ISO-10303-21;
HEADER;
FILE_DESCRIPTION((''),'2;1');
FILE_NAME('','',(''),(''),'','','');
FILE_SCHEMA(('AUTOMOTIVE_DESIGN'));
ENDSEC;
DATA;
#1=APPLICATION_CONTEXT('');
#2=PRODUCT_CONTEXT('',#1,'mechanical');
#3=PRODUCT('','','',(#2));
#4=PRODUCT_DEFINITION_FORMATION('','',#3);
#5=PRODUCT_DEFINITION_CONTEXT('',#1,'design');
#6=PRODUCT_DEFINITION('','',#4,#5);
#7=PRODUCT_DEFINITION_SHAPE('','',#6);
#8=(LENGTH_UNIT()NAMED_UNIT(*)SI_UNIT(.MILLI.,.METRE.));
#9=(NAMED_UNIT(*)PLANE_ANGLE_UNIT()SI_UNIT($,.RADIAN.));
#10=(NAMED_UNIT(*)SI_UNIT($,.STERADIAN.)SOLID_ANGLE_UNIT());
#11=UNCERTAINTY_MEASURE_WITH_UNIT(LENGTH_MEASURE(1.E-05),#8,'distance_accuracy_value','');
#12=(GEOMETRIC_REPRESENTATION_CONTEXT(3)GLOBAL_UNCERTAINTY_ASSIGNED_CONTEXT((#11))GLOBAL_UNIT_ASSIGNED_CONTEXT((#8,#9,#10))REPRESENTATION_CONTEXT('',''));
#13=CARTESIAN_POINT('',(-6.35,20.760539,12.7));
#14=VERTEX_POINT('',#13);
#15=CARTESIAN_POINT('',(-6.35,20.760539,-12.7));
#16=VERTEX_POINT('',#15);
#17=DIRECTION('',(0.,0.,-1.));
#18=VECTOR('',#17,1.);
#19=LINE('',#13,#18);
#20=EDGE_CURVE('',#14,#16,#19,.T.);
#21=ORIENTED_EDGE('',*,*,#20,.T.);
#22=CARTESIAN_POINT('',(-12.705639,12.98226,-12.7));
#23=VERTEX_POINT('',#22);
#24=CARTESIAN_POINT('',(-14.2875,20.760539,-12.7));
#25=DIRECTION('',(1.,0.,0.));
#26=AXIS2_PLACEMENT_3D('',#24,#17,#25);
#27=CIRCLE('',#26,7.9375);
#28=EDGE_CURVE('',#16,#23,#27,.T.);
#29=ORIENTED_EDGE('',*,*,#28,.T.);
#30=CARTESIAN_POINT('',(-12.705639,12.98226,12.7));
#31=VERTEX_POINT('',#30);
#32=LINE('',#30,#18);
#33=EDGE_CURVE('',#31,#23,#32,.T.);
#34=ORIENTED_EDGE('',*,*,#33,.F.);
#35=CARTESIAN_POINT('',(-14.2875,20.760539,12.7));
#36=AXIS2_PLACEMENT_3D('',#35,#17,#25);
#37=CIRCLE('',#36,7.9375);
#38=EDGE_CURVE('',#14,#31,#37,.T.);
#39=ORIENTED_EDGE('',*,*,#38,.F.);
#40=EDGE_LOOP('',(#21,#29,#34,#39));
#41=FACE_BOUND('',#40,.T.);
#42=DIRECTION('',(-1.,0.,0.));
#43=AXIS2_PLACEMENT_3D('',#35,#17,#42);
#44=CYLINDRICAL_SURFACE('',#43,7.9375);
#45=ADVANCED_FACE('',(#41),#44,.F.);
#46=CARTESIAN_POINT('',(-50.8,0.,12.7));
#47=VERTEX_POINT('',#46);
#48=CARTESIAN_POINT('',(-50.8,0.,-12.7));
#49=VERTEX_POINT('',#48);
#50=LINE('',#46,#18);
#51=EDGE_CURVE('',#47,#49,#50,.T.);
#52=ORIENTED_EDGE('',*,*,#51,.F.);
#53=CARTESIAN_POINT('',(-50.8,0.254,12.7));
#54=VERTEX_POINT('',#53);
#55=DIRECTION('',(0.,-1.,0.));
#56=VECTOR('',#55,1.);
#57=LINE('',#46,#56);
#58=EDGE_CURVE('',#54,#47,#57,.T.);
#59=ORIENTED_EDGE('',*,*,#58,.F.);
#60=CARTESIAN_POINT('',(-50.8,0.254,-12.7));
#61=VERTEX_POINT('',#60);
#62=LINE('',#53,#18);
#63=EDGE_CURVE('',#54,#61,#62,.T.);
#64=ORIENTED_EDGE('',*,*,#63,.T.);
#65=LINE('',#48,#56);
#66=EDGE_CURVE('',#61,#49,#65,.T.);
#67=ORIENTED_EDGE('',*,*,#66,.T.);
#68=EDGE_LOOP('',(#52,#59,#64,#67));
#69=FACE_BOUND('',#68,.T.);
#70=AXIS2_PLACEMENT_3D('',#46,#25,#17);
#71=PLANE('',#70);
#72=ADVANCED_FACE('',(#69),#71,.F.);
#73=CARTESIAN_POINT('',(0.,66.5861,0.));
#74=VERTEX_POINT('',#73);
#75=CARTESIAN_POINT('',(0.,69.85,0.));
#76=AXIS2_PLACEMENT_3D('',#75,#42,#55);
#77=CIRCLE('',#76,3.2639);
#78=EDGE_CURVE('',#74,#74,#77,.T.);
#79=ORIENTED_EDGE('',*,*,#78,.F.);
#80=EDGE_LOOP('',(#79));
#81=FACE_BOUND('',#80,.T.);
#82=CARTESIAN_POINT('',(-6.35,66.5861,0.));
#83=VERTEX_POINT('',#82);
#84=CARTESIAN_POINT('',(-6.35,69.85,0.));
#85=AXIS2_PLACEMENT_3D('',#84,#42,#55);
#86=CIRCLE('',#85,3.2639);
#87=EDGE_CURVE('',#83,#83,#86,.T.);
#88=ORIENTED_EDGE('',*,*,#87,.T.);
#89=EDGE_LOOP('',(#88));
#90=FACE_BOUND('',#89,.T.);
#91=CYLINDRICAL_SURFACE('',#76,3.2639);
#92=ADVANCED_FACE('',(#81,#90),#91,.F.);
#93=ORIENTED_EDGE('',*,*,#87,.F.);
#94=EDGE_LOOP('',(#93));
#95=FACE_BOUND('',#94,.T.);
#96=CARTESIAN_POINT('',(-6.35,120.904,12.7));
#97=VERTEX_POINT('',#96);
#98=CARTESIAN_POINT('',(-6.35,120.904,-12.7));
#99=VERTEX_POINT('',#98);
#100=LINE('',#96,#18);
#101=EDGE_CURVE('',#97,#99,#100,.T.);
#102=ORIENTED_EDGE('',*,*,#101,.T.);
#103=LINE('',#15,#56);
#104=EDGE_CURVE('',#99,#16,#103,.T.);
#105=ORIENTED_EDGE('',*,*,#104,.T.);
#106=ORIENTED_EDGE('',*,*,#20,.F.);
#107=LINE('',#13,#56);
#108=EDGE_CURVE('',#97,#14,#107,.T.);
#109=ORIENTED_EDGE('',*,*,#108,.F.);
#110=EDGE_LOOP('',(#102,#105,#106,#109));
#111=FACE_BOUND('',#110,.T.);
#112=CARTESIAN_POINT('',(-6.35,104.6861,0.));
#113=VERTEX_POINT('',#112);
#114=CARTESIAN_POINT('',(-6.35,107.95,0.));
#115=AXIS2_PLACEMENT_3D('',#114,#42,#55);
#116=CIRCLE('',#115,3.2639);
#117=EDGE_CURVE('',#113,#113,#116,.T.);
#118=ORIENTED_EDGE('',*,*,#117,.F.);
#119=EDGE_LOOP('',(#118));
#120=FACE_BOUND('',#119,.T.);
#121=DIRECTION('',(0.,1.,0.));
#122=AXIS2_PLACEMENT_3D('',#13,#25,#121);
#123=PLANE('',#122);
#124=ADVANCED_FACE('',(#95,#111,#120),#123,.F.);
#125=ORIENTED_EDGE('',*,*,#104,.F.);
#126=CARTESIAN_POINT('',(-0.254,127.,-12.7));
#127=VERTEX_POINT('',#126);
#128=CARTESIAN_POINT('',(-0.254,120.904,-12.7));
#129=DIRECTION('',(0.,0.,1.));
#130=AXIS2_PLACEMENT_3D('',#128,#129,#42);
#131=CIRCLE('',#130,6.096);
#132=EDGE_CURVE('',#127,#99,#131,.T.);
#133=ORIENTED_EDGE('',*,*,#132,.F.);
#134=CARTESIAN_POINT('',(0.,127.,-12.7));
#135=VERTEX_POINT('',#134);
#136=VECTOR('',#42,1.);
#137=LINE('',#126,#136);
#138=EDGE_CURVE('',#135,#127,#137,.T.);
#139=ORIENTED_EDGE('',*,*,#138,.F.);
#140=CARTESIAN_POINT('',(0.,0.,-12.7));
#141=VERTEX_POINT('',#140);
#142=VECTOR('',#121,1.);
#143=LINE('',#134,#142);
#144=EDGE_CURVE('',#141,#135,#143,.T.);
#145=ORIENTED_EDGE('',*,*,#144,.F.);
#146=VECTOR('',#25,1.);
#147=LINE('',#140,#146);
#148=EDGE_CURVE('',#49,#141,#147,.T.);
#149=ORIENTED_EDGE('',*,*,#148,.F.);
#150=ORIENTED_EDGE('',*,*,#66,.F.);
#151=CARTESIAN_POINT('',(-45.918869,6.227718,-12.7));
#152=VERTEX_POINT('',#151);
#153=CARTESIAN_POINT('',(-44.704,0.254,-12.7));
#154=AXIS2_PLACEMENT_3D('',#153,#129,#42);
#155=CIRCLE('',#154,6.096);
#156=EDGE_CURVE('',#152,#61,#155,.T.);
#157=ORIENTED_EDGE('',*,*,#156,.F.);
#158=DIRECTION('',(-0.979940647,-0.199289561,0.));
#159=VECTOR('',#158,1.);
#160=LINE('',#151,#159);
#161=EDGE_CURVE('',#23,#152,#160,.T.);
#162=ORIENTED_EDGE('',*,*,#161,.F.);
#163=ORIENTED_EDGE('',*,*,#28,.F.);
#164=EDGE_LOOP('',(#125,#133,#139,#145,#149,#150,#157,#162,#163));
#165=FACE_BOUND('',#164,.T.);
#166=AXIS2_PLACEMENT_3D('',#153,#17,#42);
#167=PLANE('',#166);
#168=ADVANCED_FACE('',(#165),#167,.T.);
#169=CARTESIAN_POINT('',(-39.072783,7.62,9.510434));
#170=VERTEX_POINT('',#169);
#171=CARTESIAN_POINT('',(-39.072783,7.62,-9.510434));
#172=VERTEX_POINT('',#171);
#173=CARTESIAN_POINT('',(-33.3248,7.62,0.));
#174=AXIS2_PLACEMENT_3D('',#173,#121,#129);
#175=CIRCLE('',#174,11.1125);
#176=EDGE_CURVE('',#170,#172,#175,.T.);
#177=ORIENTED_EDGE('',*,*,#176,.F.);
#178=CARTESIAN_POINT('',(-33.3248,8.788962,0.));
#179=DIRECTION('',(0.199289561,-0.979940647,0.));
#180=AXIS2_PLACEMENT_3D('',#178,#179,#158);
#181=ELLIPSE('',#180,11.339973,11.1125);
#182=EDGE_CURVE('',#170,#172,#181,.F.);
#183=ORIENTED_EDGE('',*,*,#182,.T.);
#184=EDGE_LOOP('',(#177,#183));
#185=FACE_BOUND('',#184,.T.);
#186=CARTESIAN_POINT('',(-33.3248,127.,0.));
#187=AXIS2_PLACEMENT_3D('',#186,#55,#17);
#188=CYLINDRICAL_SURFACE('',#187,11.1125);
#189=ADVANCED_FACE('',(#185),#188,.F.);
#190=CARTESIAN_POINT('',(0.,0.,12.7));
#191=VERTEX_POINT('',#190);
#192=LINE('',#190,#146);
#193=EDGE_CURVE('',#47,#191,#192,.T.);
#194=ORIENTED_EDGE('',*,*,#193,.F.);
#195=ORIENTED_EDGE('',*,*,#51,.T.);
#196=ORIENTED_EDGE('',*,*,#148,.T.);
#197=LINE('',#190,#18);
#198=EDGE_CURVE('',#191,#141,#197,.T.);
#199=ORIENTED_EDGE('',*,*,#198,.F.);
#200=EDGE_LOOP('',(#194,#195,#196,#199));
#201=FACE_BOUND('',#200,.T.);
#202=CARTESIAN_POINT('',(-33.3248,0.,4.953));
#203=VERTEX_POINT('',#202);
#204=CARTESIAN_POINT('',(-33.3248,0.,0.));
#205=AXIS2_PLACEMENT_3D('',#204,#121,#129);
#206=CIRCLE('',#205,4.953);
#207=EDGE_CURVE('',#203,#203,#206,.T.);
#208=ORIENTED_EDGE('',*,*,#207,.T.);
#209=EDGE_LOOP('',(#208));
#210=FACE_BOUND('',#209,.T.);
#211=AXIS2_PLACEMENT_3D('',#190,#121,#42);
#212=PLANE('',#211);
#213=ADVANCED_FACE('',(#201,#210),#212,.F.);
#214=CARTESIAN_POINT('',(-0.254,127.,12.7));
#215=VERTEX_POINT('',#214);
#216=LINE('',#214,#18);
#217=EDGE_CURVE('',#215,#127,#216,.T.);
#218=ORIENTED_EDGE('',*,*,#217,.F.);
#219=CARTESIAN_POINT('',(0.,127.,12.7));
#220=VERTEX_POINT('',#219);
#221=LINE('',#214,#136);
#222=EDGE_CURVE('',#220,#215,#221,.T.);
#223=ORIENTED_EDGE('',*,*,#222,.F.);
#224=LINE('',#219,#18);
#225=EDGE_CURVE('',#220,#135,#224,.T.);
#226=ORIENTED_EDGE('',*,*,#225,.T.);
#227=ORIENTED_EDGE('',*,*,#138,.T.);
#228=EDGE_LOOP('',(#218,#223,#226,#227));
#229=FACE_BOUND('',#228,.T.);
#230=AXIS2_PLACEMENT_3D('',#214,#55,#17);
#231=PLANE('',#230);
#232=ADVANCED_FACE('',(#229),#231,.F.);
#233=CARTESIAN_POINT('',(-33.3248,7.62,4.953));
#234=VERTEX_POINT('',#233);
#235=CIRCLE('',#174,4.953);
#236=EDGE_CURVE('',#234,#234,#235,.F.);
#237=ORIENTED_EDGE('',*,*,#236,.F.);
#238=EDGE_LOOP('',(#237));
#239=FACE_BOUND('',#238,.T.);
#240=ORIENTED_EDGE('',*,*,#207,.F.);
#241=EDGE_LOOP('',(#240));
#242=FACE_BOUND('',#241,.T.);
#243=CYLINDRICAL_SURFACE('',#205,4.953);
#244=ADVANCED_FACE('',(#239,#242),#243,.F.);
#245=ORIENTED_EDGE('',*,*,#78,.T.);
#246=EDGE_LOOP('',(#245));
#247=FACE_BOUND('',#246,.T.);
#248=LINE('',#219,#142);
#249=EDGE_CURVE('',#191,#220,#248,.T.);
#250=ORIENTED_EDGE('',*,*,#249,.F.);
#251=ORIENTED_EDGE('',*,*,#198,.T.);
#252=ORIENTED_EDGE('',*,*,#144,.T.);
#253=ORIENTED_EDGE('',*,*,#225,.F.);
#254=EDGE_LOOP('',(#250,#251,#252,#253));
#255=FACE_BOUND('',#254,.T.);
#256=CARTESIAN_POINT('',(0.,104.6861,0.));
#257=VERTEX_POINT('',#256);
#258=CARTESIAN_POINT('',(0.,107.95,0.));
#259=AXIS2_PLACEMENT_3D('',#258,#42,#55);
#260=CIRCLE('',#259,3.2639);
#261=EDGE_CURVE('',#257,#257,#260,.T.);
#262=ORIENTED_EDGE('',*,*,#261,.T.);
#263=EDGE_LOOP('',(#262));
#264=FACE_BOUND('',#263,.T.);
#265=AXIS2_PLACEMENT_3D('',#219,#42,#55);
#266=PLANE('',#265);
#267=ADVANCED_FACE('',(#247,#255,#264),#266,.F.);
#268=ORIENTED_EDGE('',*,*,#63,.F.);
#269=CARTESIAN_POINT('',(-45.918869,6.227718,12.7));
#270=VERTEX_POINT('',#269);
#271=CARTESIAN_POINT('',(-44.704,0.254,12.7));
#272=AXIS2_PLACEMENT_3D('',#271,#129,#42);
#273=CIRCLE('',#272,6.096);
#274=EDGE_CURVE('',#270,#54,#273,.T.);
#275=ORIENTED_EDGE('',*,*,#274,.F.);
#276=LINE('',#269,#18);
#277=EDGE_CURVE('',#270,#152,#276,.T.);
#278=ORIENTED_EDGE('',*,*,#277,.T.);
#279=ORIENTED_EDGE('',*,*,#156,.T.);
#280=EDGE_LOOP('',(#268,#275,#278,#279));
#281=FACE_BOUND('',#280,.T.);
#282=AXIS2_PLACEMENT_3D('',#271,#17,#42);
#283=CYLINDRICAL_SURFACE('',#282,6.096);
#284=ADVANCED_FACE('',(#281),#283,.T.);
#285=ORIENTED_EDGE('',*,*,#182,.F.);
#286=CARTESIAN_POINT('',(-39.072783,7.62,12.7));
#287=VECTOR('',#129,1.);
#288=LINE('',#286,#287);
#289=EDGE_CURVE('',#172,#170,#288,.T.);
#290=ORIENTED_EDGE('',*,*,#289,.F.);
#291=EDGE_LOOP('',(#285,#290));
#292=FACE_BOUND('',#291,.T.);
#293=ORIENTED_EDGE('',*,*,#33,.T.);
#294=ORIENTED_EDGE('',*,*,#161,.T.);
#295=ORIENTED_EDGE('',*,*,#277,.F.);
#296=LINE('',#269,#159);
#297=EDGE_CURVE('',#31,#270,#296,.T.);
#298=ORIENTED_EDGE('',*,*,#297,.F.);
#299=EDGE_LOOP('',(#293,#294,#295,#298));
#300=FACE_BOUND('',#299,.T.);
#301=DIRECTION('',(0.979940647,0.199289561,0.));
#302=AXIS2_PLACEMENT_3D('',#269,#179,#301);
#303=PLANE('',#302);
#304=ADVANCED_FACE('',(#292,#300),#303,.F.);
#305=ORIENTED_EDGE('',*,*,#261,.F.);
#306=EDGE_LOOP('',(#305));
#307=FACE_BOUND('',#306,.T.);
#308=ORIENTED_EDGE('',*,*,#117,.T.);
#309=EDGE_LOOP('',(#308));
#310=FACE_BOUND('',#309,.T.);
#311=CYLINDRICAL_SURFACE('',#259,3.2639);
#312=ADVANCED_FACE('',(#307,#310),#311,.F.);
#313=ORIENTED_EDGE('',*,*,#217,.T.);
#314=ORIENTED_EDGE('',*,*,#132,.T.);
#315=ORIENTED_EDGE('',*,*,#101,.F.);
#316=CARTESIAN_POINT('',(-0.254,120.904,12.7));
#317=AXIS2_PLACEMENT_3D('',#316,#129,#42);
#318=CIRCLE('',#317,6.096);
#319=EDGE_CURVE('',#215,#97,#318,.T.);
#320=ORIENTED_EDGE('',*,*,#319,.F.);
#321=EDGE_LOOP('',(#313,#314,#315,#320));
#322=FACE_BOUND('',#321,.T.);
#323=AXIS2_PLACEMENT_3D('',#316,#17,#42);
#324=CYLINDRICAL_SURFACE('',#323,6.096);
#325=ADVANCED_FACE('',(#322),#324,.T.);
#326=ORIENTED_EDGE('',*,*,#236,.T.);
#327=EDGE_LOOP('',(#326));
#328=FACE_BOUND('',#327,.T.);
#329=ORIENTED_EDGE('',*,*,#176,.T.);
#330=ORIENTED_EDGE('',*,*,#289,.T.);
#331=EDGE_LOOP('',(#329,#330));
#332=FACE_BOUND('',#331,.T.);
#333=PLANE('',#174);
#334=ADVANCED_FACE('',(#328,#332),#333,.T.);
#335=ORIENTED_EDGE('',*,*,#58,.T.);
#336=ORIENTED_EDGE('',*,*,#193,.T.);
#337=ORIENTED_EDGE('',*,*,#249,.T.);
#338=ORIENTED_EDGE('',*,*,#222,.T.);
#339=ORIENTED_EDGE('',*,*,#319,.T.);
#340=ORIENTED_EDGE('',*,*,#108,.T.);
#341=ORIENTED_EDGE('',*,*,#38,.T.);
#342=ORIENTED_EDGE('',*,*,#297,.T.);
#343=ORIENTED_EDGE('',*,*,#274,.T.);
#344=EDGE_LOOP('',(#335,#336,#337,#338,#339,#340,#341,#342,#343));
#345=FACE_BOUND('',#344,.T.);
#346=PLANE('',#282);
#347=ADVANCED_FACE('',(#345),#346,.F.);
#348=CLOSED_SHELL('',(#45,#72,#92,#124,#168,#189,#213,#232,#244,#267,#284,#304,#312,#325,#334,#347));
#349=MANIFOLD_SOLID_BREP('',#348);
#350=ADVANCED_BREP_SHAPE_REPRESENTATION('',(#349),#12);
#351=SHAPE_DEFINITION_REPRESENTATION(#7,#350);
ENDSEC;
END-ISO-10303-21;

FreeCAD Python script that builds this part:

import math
import FreeCAD as App
import Part
import Sketcher

V = App.Vector
Q = App.Units.Quantity

doc = App.newDocument("Part")
body = doc.addObject("PartDesign::Body", "Body")

sketch1 = doc.addObject("Sketcher::SketchObject", "Sketch")
body.addObject(sketch1)
sketch1.AttachmentSupport = (doc.XY_Plane, [""])
sketch1.MapMode = "FlatFace"
sketch1.addGeometry(Part.LineSegment(V(0, 0, 0), V(0, 127, 0)), False)
sketch1.addGeometry(Part.LineSegment(V(0, 127, 0), V(-0.25, 127, 0)), False)
sketch1.addGeometry(Part.ArcOfCircle(Part.Circle(V(-0.25, 120.9, 0), V(0, 0, 1), 6.1), math.radians(90), math.radians(180)), False)
sketch1.addGeometry(Part.LineSegment(V(-6.35, 120.9, 0), V(-6.35, 20.76, 0)), False)
sketch1.addGeometry(Part.ArcOfCircle(Part.Circle(V(-14.29, 20.76, 0), V(0, 0, 1), 7.94), math.radians(-79), math.radians(0)), False)
sketch1.addGeometry(Part.LineSegment(V(-12.71, 12.98, 0), V(-45.92, 6.23, 0)), False)
sketch1.addGeometry(Part.ArcOfCircle(Part.Circle(V(-44.7, 0.25, 0), V(0, 0, 1), 6.1), math.radians(101), math.radians(180)), False)
sketch1.addGeometry(Part.LineSegment(V(-50.8, 0.25, 0), V(-50.8, 0, 0)), False)
sketch1.addGeometry(Part.LineSegment(V(-50.8, 0, 0), V(0, 0, 0)), False)
sketch1.addConstraint(Sketcher.Constraint("Coincident", 0, 2, 1, 1))
sketch1.addConstraint(Sketcher.Constraint("Tangent", 1, 2, 2, 1))
sketch1.addConstraint(Sketcher.Constraint("Tangent", 2, 2, 3, 1))
sketch1.addConstraint(Sketcher.Constraint("Tangent", 3, 2, 4, 2))
sketch1.addConstraint(Sketcher.Constraint("Tangent", 4, 1, 5, 1))
sketch1.addConstraint(Sketcher.Constraint("Tangent", 5, 2, 6, 1))
sketch1.addConstraint(Sketcher.Constraint("Tangent", 6, 2, 7, 1))
sketch1.addConstraint(Sketcher.Constraint("Coincident", 7, 2, 8, 1))
sketch1.addConstraint(Sketcher.Constraint("Coincident", 8, 2, 0, 1))
sketch1.addConstraint(Sketcher.Constraint("Vertical", 0))
sketch1.addConstraint(Sketcher.Constraint("Horizontal", 1))
sketch1.addConstraint(Sketcher.Constraint("Vertical", 3))
sketch1.addConstraint(Sketcher.Constraint("Vertical", 7))
sketch1.addConstraint(Sketcher.Constraint("Horizontal", 8))
sketch1.addConstraint(Sketcher.Constraint("Coincident", 8, 2, -1, 1))
sketch1.addConstraint(Sketcher.Constraint("Equal", 2, 6))
sketch1.addConstraint(Sketcher.Constraint("Equal", 1, 7))
sketch1.addConstraint(Sketcher.Constraint("DistanceX", 8, 1, 8, 2, Q("2 in")))
sketch1.addConstraint(Sketcher.Constraint("DistanceY", 0, 1, 0, 2, Q("5 in")))
sketch1.addConstraint(Sketcher.Constraint("Radius", 2, Q("0.24 in")))
sketch1.addConstraint(Sketcher.Constraint("Radius", 4, Q("0.3125 in")))
sketch1.addConstraint(Sketcher.Constraint("DistanceX", 1, 2, 1, 1, Q("0.01 in")))
sketch1.addConstraint(Sketcher.Constraint("DistanceY", 3, 2, 3, 1, Q("100.143461 mm")))
pad1 = doc.addObject("PartDesign::Pad", "Pad")
body.addObject(pad1)
pad1.Profile = sketch1
pad1.Length = Q("1 in")
pad1.Midplane = True

sketch2 = doc.addObject("Sketcher::SketchObject", "Sketch001")
body.addObject(sketch2)
sketch2.AttachmentSupport = (doc.YZ_Plane, [""])
sketch2.MapMode = "FlatFace"
sketch2.AttachmentOffset = App.Placement(V(0, 0, -0.25 * 25.4), App.Rotation())
sketch2.addGeometry(Part.Circle(V(69.8, 0, 0), V(0, 0, 1), 3.3), False)
sketch2.addGeometry(Part.Circle(V(108, 0, 0), V(0, 0, 1), 3.3), False)
sketch2.addConstraint(Sketcher.Constraint("Equal", 0, 1))
sketch2.addConstraint(Sketcher.Constraint("PointOnObject", 0, 3, -1))
sketch2.addConstraint(Sketcher.Constraint("PointOnObject", 1, 3, -1))
sketch2.addConstraint(Sketcher.Constraint("Diameter", 0, Q("0.257 in")))
sketch2.addConstraint(Sketcher.Constraint("DistanceX", 0, 3, 1, 3, Q("1.5 in")))
sketch2.addConstraint(Sketcher.Constraint("DistanceX", -1, 1, 0, 3, Q("2.75 in")))
pocket1 = doc.addObject("PartDesign::Pocket", "Pocket")
body.addObject(pocket1)
pocket1.Profile = sketch2
pocket1.Type = "ThroughAll"
pocket1.Reversed = True

sketch3 = doc.addObject("Sketcher::SketchObject", "Sketch002")
body.addObject(sketch3)
sketch3.AttachmentSupport = (doc.XZ_Plane, [""])
sketch3.MapMode = "FlatFace"
sketch3.AttachmentOffset = App.Placement(V(0, 0, -0.3 * 25.4), App.Rotation())
sketch3.addGeometry(Part.Circle(V(-33.3, 0, 0), V(0, 0, 1), 5), False)
sketch3.addConstraint(Sketcher.Constraint("PointOnObject", 0, 3, -1))
sketch3.addConstraint(Sketcher.Constraint("Diameter", 0, Q("0.39 in")))
sketch3.addConstraint(Sketcher.Constraint("DistanceX", 0, 3, -1, 1, Q("1.312 in")))
pocket2 = doc.addObject("PartDesign::Pocket", "Pocket001")
body.addObject(pocket2)
pocket2.Profile = sketch3
pocket2.Type = "ThroughAll"
pocket2.Reversed = True

sketch4 = doc.addObject("Sketcher::SketchObject", "Sketch003")
body.addObject(sketch4)
sketch4.AttachmentSupport = (doc.XZ_Plane, [""])
sketch4.MapMode = "FlatFace"
sketch4.AttachmentOffset = App.Placement(V(0, 0, -0.3 * 25.4), App.Rotation())
sketch4.addGeometry(Part.Circle(V(-33, 0, 0), V(0, 0, 1), 11), False)
sketch4.addConstraint(Sketcher.Constraint("PointOnObject", 0, 3, -1))
sketch4.addConstraint(Sketcher.Constraint("Diameter", 0, Q("0.875 in")))
sketch4.addConstraint(Sketcher.Constraint("DistanceX", 0, 3, -1, 1, Q("1.312 in")))
pocket3 = doc.addObject("PartDesign::Pocket", "Pocket002")
body.addObject(pocket3)
pocket3.Profile = sketch4
pocket3.Type = "ThroughAll"

doc.recompute()
